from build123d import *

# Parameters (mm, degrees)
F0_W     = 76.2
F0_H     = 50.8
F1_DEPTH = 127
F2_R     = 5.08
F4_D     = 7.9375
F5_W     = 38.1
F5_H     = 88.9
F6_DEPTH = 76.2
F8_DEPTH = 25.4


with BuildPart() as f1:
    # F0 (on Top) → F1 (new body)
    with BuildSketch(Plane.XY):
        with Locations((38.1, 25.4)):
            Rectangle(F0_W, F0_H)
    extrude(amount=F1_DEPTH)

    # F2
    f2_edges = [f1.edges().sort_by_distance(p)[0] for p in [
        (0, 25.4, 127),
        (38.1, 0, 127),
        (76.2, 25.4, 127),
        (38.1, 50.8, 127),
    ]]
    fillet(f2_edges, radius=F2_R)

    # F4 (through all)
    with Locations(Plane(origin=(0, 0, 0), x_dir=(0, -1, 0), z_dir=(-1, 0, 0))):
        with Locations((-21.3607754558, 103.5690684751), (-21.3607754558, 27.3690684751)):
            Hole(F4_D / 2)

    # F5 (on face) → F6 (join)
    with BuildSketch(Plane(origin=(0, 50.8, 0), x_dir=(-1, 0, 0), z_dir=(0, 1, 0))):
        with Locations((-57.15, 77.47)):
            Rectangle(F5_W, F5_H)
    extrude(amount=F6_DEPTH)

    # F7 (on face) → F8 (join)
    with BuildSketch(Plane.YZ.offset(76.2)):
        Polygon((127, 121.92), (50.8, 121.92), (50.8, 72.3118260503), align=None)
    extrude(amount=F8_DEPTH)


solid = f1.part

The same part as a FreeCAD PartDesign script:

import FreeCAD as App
import Part
import Sketcher

V = App.Vector
Q = App.Units.Quantity


def edges_at(feature, points):
    """Names of the edges that pass closest to the given points."""
    edges = feature.Shape.Edges
    near = lambda p: min(range(len(edges)), key=lambda i: edges[i].distToShape(Part.Vertex(*p))[0])
    return sorted({f"Edge{near(p) + 1}" for p in points})

doc = App.newDocument("Part")
body = doc.addObject("PartDesign::Body", "Body")

# Sketch on XY plane
sketch1 = body.newObject("Sketcher::SketchObject", "Sketch")
sketch1.AttachmentSupport = (doc.getObject("XY_Plane"), [""])
sketch1.MapMode = "FlatFace"
sketch1.addGeometry([
    Part.LineSegment(V(0, 50.8, 0), V(0, 0, 0)),
    Part.LineSegment(V(0, 0, 0), V(76.2, 0, 0)),
    Part.LineSegment(V(76.2, 0, 0), V(76.2, 50.8, 0)),
    Part.LineSegment(V(76.2, 50.8, 0), V(0, 50.8, 0)),
], False)
sketch1.addConstraint([
    Sketcher.Constraint("Coincident", 0, 2, 1, 1),
    Sketcher.Constraint("Coincident", 1, 2, 2, 1),
    Sketcher.Constraint("Coincident", 2, 2, 3, 1),
    Sketcher.Constraint("Coincident", 3, 2, 0, 1),
    Sketcher.Constraint("Vertical", 0),
    Sketcher.Constraint("Horizontal", 1),
    Sketcher.Constraint("Vertical", 2),
    Sketcher.Constraint("Horizontal", 3),
    Sketcher.Constraint("Coincident", 0, 2, -1, 1),
    Sketcher.Constraint("DistanceX", 1, 1, 1, 2, Q("3 in")),
    Sketcher.Constraint("DistanceY", 0, 2, 0, 1, Q("2 in")),
])
pad1 = body.newObject("PartDesign::Pad", "Pad")
pad1.Profile = sketch1
pad1.Length = Q("5 in")
doc.recompute()

fillet = body.newObject("PartDesign::Fillet", "Fillet")
fillet.Base = (pad1, edges_at(pad1, [
    (0, 25.4, 127),
    (38.1, 0, 127),
    (76.2, 25.4, 127),
    (38.1, 50.8, 127),
]))
fillet.Radius = Q("0.2 in")

# Sketch on YZ plane
sketch2 = body.newObject("Sketcher::SketchObject", "Sketch001")
sketch2.AttachmentSupport = (doc.getObject("YZ_Plane"), [""])
sketch2.MapMode = "FlatFace"
sketch2.addGeometry([
    Part.Circle(V(21.360775, 103.569068, 0), V(0, 0, 1), 3.96875),
    Part.Circle(V(21.360775, 27.369068, 0), V(0, 0, 1), 3.96875),
], False)
sketch2.addConstraint([
    Sketcher.Constraint("Equal", 0, 1),
    Sketcher.Constraint("Vertical", 0, 3, 1, 3),
    Sketcher.Constraint("Diameter", 0, Q("0.3125 in")),
    Sketcher.Constraint("DistanceY", 1, 3, 0, 3, Q("3 in")),
    Sketcher.Constraint("DistanceY", -1, 1, 0, 3, 103.569068),
    Sketcher.Constraint("DistanceX", -1, 1, 0, 3, 21.360775),
])
doc.recompute()
hole = body.newObject("PartDesign::Hole", "Hole")
hole.Profile = sketch2
hole.ThreadType = "None"
hole.Diameter = Q("0.3125 in")
hole.DepthType = "ThroughAll"
hole.Reversed = True

# Sketch on XZ plane
sketch3 = body.newObject("Sketcher::SketchObject", "Sketch002")
sketch3.AttachmentSupport = (doc.getObject("XZ_Plane"), [""])
sketch3.MapMode = "FlatFace"
sketch3.AttachmentOffset = App.Placement(V(0, 0, -2 * 25.4), App.Rotation())
sketch3.addGeometry([
    Part.LineSegment(V(76.2, 121.92, 0), V(76.2, 33.02, 0)),
    Part.LineSegment(V(76.2, 33.02, 0), V(38.1, 33.02, 0)),
    Part.LineSegment(V(38.1, 33.02, 0), V(38.1, 121.92, 0)),
    Part.LineSegment(V(38.1, 121.92, 0), V(76.2, 121.92, 0)),
], False)
sketch3.addConstraint([
    Sketcher.Constraint("Coincident", 0, 2, 1, 1),
    Sketcher.Constraint("Coincident", 1, 2, 2, 1),
    Sketcher.Constraint("Coincident", 2, 2, 3, 1),
    Sketcher.Constraint("Coincident", 3, 2, 0, 1),
    Sketcher.Constraint("Vertical", 0),
    Sketcher.Constraint("Horizontal", 1),
    Sketcher.Constraint("Vertical", 2),
    Sketcher.Constraint("Horizontal", 3),
    Sketcher.Constraint("DistanceX", 1, 2, 1, 1, Q("1.5 in")),
    Sketcher.Constraint("DistanceY", 0, 2, 0, 1, Q("3.5 in")),
    Sketcher.Constraint("DistanceX", -1, 1, 0, 2, Q("3 in")),
    Sketcher.Constraint("DistanceY", -1, 1, 0, 2, Q("1.3 in")),
])
pad2 = body.newObject("PartDesign::Pad", "Pad001")
pad2.Profile = sketch3
pad2.Length = Q("3 in")
pad2.Reversed = True

# Sketch on YZ plane
sketch4 = body.newObject("Sketcher::SketchObject", "Sketch003")
sketch4.AttachmentSupport = (doc.getObject("YZ_Plane"), [""])
sketch4.MapMode = "FlatFace"
sketch4.AttachmentOffset = App.Placement(V(0, 0, 3 * 25.4), App.Rotation())
sketch4.addGeometry([
    Part.LineSegment(V(127, 121.92, 0), V(50.8, 121.92, 0)),
    Part.LineSegment(V(50.8, 121.92, 0), V(50.8, 72.311826, 0)),
    Part.LineSegment(V(50.8, 72.311826, 0), V(127, 121.92, 0)),
], False)
sketch4.addConstraint([
    Sketcher.Constraint("Coincident", 0, 2, 1, 1),
    Sketcher.Constraint("Coincident", 1, 2, 2, 1),
    Sketcher.Constraint("Coincident", 2, 2, 0, 1),
    Sketcher.Constraint("Horizontal", 0),
    Sketcher.Constraint("Vertical", 1),
    Sketcher.Constraint("DistanceX", 0, 2, 0, 1, Q("3 in")),
    Sketcher.Constraint("DistanceX", -1, 1, 0, 2, Q("2 in")),
    Sketcher.Constraint("DistanceY", -1, 1, 0, 2, Q("4.8 in")),
    Sketcher.Constraint("DistanceY", 1, 2, 1, 1, 49.608174),
])
pad3 = body.newObject("PartDesign::Pad", "Pad002")
pad3.Profile = sketch4
pad3.Length = Q("1 in")

doc.recompute()
